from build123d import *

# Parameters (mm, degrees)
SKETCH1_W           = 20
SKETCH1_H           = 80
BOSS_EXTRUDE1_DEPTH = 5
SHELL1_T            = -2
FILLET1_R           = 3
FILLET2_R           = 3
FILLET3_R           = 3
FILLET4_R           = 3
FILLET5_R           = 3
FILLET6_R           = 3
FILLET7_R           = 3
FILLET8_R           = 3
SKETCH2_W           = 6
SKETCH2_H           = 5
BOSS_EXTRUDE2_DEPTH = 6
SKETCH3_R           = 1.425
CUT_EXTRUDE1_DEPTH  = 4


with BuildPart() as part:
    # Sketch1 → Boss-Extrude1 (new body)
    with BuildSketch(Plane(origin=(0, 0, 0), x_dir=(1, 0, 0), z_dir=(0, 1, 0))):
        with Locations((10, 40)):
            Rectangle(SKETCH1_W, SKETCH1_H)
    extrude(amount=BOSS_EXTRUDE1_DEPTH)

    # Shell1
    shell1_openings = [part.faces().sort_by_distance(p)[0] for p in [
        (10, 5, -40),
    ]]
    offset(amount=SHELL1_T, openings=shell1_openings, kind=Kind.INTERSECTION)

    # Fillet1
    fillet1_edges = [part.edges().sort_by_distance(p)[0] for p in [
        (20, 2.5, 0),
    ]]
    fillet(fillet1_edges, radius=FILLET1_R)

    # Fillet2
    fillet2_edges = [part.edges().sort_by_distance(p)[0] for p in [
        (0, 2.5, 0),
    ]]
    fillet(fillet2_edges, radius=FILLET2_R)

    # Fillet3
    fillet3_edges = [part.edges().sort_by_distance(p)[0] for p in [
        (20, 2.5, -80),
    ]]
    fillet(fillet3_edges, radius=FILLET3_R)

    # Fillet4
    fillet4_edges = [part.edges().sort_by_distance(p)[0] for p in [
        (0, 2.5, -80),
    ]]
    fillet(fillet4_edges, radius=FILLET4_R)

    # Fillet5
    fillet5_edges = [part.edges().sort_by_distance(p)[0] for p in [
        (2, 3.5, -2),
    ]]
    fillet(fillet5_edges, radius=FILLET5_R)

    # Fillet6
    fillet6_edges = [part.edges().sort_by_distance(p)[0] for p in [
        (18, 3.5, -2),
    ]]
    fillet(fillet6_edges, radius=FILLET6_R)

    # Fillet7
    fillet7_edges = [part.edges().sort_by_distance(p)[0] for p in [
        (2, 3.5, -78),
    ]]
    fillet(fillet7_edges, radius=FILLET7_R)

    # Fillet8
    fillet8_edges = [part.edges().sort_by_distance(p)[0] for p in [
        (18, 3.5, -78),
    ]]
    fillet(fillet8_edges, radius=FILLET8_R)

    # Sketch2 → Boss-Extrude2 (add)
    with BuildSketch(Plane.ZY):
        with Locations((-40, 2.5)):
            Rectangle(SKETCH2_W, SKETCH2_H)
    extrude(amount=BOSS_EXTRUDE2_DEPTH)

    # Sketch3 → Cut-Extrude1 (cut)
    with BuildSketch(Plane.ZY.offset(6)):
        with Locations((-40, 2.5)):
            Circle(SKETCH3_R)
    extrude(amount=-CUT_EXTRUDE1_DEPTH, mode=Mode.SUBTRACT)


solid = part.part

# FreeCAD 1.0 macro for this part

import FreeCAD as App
import Part
import Sketcher
from FreeCAD import Vector
Q = App.Units.Quantity


def edges_at(feature, points):
    """Names of the edges that pass closest to the given points."""
    edges = feature.Shape.Edges
    near = lambda p: min(range(len(edges)), key=lambda i: edges[i].distToShape(Part.Vertex(*p))[0])
    return sorted({f"Edge{near(p) + 1}" for p in points})


def faces_at(feature, points):
    """Names of the faces that lie closest to the given points."""
    faces = feature.Shape.Faces
    near = lambda p: min(range(len(faces)), key=lambda i: faces[i].distToShape(Part.Vertex(*p))[0])
    return sorted({f"Face{near(p) + 1}" for p in points})

doc = App.newDocument("Part")
body = doc.addObject("PartDesign::Body", "Body")

sketch1 = body.newObject("Sketcher::SketchObject", "Sketch")
sketch1.AttachmentSupport = (doc.getObject("XZ_Plane"), [""])
sketch1.MapMode = "FlatFace"
sketch1.addGeometry([
    Part.LineSegment(Vector(0, -80, 0), Vector(0, 0, 0)),
    Part.LineSegment(Vector(0, 0, 0), Vector(20, 0, 0)),
    Part.LineSegment(Vector(20, 0, 0), Vector(20, -80, 0)),
    Part.LineSegment(Vector(20, -80, 0), Vector(0, -80, 0)),
], False)
sketch1.addConstraint([
    Sketcher.Constraint("Coincident", 0, 2, 1, 1),
    Sketcher.Constraint("Coincident", 1, 2, 2, 1),
    Sketcher.Constraint("Coincident", 2, 2, 3, 1),
    Sketcher.Constraint("Coincident", 3, 2, 0, 1),
    Sketcher.Constraint("Vertical", 0),
    Sketcher.Constraint("Horizontal", 1),
    Sketcher.Constraint("Vertical", 2),
    Sketcher.Constraint("Horizontal", 3),
    Sketcher.Constraint("Coincident", 0, 2, -1, 1),
    Sketcher.Constraint("DistanceX", 1, 1, 1, 2, Q("20 mm")),
    Sketcher.Constraint("DistanceY", 0, 1, 0, 2, Q("80 mm")),
])
pad1 = body.newObject("PartDesign::Pad", "Pad")
pad1.Profile = sketch1
pad1.Length = 5
pad1.Reversed = True
doc.recompute()

thickness = body.newObject("PartDesign::Thickness", "Thickness")
thickness.Base = (pad1, faces_at(pad1, [(10, 5, -40)]))
thickness.Value = 2
thickness.Reversed = True
thickness.Join = "Intersection"
doc.recompute()

fillet = body.newObject("PartDesign::Fillet", "Fillet")
fillet.Base = (thickness, edges_at(thickness, [(20, 2.5, 0)]))
fillet.Radius = 3
doc.recompute()

fillet2 = body.newObject("PartDesign::Fillet", "Fillet001")
fillet2.Base = (fillet, edges_at(fillet, [(0, 2.5, 0)]))
fillet2.Radius = 3
doc.recompute()

fillet3 = body.newObject("PartDesign::Fillet", "Fillet002")
fillet3.Base = (fillet2, edges_at(fillet2, [(20, 2.5, -80)]))
fillet3.Radius = 3
doc.recompute()

fillet4 = body.newObject("PartDesign::Fillet", "Fillet003")
fillet4.Base = (fillet3, edges_at(fillet3, [(0, 2.5, -80)]))
fillet4.Radius = 3
doc.recompute()

fillet5 = body.newObject("PartDesign::Fillet", "Fillet004")
fillet5.Base = (fillet4, edges_at(fillet4, [(2, 3.5, -2)]))
fillet5.Radius = 3
doc.recompute()

fillet6 = body.newObject("PartDesign::Fillet", "Fillet005")
fillet6.Base = (fillet5, edges_at(fillet5, [(18, 3.5, -2)]))
fillet6.Radius = 3
doc.recompute()

fillet7 = body.newObject("PartDesign::Fillet", "Fillet006")
fillet7.Base = (fillet6, edges_at(fillet6, [(2, 3.5, -78)]))
fillet7.Radius = 3
doc.recompute()

fillet8 = body.newObject("PartDesign::Fillet", "Fillet007")
fillet8.Base = (fillet7, edges_at(fillet7, [(18, 3.5, -78)]))
fillet8.Radius = 3

sketch2 = body.newObject("Sketcher::SketchObject", "Sketch001")
sketch2.AttachmentSupport = (doc.getObject("YZ_Plane"), [""])
sketch2.MapMode = "FlatFace"
sketch2.addGeometry([
    Part.LineSegment(Vector(5, -43, 0), Vector(0, -43, 0)),
    Part.LineSegment(Vector(0, -43, 0), Vector(0, -37, 0)),
    Part.LineSegment(Vector(0, -37, 0), Vector(5, -37, 0)),
    Part.LineSegment(Vector(5, -37, 0), Vector(5, -43, 0)),
], False)
sketch2.addConstraint([
    Sketcher.Constraint("Coincident", 0, 2, 1, 1),
    Sketcher.Constraint("Coincident", 1, 2, 2, 1),
    Sketcher.Constraint("Coincident", 2, 2, 3, 1),
    Sketcher.Constraint("Coincident", 3, 2, 0, 1),
    Sketcher.Constraint("Horizontal", 0),
    Sketcher.Constraint("Vertical", 1),
    Sketcher.Constraint("Horizontal", 2),
    Sketcher.Constraint("Vertical", 3),
    Sketcher.Constraint("PointOnObject", 0, 2, -2),
    Sketcher.Constraint("DistanceX", 0, 2, 0, 1, Q("5 mm")),
    Sketcher.Constraint("DistanceY", 1, 1, 1, 2, Q("6 mm")),
    Sketcher.Constraint("DistanceY", 0, 2, -1, 1, Q("43 mm")),
])
pad2 = body.newObject("PartDesign::Pad", "Pad001")
pad2.Profile = sketch2
pad2.Length = 6
pad2.Reversed = True

sketch3 = body.newObject("Sketcher::SketchObject", "Sketch002")
sketch3.AttachmentSupport = (doc.getObject("YZ_Plane"), [""])
sketch3.MapMode = "FlatFace"
sketch3.AttachmentOffset = App.Placement(Vector(0, 0, -6), App.Rotation())
sketch3.addGeometry(Part.Circle(Vector(2.5, -40, 0), Vector(0, 0, 1), 1.4), False)
sketch3.addConstraint([
    Sketcher.Constraint("Diameter", 0, Q("2.85 mm")),
    Sketcher.Constraint("DistanceY", 0, 3, -1, 1, Q("40 mm")),
    Sketcher.Constraint("DistanceX", -1, 1, 0, 3, Q("2.5 mm")),
])
pocket1 = body.newObject("PartDesign::Pocket", "Pocket")
pocket1.Profile = sketch3
pocket1.Length = 4
pocket1.Reversed = True

doc.recompute()
